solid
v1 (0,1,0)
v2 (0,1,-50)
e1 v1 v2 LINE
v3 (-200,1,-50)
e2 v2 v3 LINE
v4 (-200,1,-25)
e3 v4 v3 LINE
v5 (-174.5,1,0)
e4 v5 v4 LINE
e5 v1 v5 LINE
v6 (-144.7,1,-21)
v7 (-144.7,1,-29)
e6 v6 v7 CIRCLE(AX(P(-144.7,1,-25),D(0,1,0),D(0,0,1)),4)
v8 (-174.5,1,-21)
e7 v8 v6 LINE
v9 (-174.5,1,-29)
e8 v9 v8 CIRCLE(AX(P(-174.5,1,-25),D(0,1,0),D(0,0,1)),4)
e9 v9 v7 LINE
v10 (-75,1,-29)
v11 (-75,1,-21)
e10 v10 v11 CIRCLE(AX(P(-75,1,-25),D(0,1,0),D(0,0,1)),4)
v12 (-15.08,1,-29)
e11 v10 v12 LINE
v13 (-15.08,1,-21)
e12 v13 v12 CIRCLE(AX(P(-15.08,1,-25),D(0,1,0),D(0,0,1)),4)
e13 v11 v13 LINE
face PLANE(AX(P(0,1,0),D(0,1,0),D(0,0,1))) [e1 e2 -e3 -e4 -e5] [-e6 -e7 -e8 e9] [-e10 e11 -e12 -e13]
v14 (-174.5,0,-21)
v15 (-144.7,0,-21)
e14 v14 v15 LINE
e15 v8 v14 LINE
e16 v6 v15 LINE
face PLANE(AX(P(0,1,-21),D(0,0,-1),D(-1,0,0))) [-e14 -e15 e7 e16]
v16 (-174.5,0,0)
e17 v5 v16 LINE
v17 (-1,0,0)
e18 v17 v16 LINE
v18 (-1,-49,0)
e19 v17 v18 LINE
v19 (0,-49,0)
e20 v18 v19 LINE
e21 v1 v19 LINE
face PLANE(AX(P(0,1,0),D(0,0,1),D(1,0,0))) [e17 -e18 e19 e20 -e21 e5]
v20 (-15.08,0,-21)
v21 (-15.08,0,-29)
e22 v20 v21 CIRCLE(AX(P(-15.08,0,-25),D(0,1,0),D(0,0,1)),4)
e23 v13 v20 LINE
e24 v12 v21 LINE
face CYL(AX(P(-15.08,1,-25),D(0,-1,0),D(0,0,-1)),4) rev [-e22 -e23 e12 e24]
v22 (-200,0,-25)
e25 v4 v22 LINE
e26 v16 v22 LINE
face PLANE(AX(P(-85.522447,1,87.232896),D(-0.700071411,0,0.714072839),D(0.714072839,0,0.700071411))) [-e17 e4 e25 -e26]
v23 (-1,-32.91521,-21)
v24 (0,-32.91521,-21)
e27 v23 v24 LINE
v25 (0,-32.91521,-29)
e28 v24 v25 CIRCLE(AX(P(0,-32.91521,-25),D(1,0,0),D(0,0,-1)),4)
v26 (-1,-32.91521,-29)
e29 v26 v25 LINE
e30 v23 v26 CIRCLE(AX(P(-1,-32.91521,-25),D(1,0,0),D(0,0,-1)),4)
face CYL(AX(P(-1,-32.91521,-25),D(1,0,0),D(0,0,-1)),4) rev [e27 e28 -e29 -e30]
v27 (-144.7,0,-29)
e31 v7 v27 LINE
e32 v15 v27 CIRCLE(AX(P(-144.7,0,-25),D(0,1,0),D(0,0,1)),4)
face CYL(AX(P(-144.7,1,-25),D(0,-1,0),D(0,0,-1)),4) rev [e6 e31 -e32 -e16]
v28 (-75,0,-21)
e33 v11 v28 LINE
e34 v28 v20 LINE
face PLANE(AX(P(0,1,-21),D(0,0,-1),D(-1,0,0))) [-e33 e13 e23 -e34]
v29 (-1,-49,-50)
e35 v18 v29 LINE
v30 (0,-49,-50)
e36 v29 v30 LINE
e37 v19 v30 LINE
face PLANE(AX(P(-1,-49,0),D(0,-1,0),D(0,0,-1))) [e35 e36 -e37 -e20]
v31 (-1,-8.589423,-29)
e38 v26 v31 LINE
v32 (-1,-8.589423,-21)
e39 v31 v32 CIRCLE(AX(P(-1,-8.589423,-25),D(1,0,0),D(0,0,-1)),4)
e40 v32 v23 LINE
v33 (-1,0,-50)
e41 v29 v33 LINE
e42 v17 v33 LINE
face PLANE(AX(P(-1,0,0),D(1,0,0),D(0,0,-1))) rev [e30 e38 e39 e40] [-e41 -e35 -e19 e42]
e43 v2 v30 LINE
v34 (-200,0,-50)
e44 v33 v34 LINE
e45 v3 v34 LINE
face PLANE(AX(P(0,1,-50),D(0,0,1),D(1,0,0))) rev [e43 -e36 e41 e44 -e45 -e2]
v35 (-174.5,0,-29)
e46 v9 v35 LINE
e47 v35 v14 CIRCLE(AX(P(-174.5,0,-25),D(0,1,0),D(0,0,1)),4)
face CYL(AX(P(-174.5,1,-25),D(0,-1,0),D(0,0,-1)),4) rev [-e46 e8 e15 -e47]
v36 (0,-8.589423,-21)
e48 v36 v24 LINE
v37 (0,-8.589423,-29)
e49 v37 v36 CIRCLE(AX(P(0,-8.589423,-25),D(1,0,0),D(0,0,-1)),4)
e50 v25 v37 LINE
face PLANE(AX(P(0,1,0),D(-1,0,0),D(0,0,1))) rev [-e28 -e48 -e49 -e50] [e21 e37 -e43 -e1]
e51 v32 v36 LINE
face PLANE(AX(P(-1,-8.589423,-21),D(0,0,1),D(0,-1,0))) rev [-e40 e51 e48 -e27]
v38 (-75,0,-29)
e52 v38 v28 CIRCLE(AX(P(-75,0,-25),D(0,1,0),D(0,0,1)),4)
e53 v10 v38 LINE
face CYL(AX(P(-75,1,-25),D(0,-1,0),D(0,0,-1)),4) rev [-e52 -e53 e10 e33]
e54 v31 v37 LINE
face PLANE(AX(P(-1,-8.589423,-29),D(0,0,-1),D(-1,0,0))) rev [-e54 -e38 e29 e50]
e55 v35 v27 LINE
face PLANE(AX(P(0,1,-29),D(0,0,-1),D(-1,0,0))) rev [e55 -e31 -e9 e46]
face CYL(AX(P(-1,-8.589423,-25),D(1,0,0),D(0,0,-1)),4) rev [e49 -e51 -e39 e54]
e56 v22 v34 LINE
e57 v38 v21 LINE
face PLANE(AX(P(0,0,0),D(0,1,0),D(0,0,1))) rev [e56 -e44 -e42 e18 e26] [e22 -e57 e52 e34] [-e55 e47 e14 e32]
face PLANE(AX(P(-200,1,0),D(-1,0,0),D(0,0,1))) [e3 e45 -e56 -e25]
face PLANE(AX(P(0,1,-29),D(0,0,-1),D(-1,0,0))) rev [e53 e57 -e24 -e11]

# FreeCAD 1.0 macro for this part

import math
import FreeCAD as App
import Part
import Sketcher

doc = App.newDocument("Part")
body = doc.addObject("PartDesign::Body", "Body")

# Sketch on XZ plane
sketch1 = body.newObject("Sketcher::SketchObject", "Sketch")
sketch1.AttachmentSupport = (doc.getObject("XZ_Plane"), [""])
sketch1.MapMode = "FlatFace"
sketch1.addGeometry(Part.LineSegment(App.Vector(-200, -25, 0), App.Vector(-174.5, 0, 0)), False)
sketch1.addGeometry(Part.LineSegment(App.Vector(-174.5, 0, 0), App.Vector(0, 0, 0)), False)
sketch1.addGeometry(Part.LineSegment(App.Vector(0, 0, 0), App.Vector(0, -50, 0)), False)
sketch1.addGeometry(Part.LineSegment(App.Vector(0, -50, 0), App.Vector(-200, -50, 0)), False)
sketch1.addGeometry(Part.LineSegment(App.Vector(-200, -50, 0), App.Vector(-200, -25, 0)), False)
sketch1.addGeometry(Part.LineSegment(App.Vector(-144.7, -21, 0), App.Vector(-174.5, -21, 0)), False)
sketch1.addGeometry(Part.ArcOfCircle(Part.Circle(App.Vector(-174.5, -25, 0), App.Vector(0, 0, 1), 4), math.radians(90), math.radians(270)), False)
sketch1.addGeometry(Part.LineSegment(App.Vector(-174.5, -29, 0), App.Vector(-144.7, -29, 0)), False)
sketch1.addGeometry(Part.ArcOfCircle(Part.Circle(App.Vector(-144.7, -25, 0), App.Vector(0, 0, 1), 4), math.radians(-90), math.radians(90)), False)
sketch1.addGeometry(Part.LineSegment(App.Vector(-15.1, -21, 0), App.Vector(-75, -21, 0)), False)
sketch1.addGeometry(Part.ArcOfCircle(Part.Circle(App.Vector(-75, -25, 0), App.Vector(0, 0, 1), 4), math.radians(90), math.radians(270)), False)
sketch1.addGeometry(Part.LineSegment(App.Vector(-75, -29, 0), App.Vector(-15.1, -29, 0)), False)
sketch1.addGeometry(Part.ArcOfCircle(Part.Circle(App.Vector(-15.1, -25, 0), App.Vector(0, 0, 1), 4), math.radians(-90), math.radians(90)), False)
sketch1.addConstraint(Sketcher.Constraint("Coincident", 0, 2, 1, 1))
sketch1.addConstraint(Sketcher.Constraint("Coincident", 1, 2, 2, 1))
sketch1.addConstraint(Sketcher.Constraint("Coincident", 2, 2, 3, 1))
sketch1.addConstraint(Sketcher.Constraint("Coincident", 3, 2, 4, 1))
sketch1.addConstraint(Sketcher.Constraint("Coincident", 4, 2, 0, 1))
sketch1.addConstraint(Sketcher.Constraint("Tangent", 5, 2, 6, 1))
sketch1.addConstraint(Sketcher.Constraint("Tangent", 6, 2, 7, 1))
sketch1.addConstraint(Sketcher.Constraint("Tangent", 7, 2, 8, 1))
sketch1.addConstraint(Sketcher.Constraint("Tangent", 8, 2, 5, 1))
sketch1.addConstraint(Sketcher.Constraint("Tangent", 9, 2, 10, 1))
sketch1.addConstraint(Sketcher.Constraint("Tangent", 10, 2, 11, 1))
sketch1.addConstraint(Sketcher.Constraint("Tangent", 11, 2, 12, 1))
sketch1.addConstraint(Sketcher.Constraint("Tangent", 12, 2, 9, 1))
sketch1.addConstraint(Sketcher.Constraint("Horizontal", 1))
sketch1.addConstraint(Sketcher.Constraint("Vertical", 2))
sketch1.addConstraint(Sketcher.Constraint("Horizontal", 3))
sketch1.addConstraint(Sketcher.Constraint("Vertical", 4))
sketch1.addConstraint(Sketcher.Constraint("Horizontal", 5))
sketch1.addConstraint(Sketcher.Constraint("Horizontal", 7))
sketch1.addConstraint(Sketcher.Constraint("Horizontal", 9))
sketch1.addConstraint(Sketcher.Constraint("Horizontal", 11))
sketch1.addConstraint(Sketcher.Constraint("Coincident", 1, 2, -1, 1))
sketch1.addConstraint(Sketcher.Constraint("Equal", 8, 10))
sketch1.addConstraint(Sketcher.Constraint("Horizontal", 8, 3, 10, 3))
sketch1.addConstraint(Sketcher.Constraint("Horizontal", 12, 3, 4, 2))
sketch1.addConstraint(Sketcher.Constraint("Vertical", 6, 3, 0, 2))
sketch1.addConstraint(Sketcher.Constraint("Radius", 6, 4.0))
sketch1.addConstraint(Sketcher.Constraint("DistanceX", 3, 2, 3, 1, 200.0))
sketch1.addConstraint(Sketcher.Constraint("DistanceY", 2, 2, 2, 1, 50.0))
sketch1.addConstraint(Sketcher.Constraint("DistanceY", 4, 1, 4, 2, 25.0))
sketch1.addConstraint(Sketcher.Constraint("DistanceX", 1, 1, 1, 2, 174.5))
sketch1.addConstraint(Sketcher.Constraint("DistanceX", 5, 2, 5, 1, 29.8))
sketch1.addConstraint(Sketcher.Constraint("DistanceX", 10, 3, -1, 1, 75.0))
sketch1.addConstraint(Sketcher.Constraint("DistanceX", 9, 2, 9, 1, 59.92))
pad1 = body.newObject("PartDesign::Pad", "Pad")
pad1.Profile = sketch1
pad1.Length = 1
pad1.Reversed = True

# Sketch on YZ plane
sketch2 = body.newObject("Sketcher::SketchObject", "Sketch001")
sketch2.AttachmentSupport = (doc.getObject("YZ_Plane"), [""])
sketch2.MapMode = "FlatFace"
sketch2.addGeometry(Part.LineSegment(App.Vector(1, 0, 0), App.Vector(-49, 0, 0)), False)
sketch2.addGeometry(Part.LineSegment(App.Vector(-49, 0, 0), App.Vector(-49, -50, 0)), False)
sketch2.addGeometry(Part.LineSegment(App.Vector(-49, -50, 0), App.Vector(1, -50, 0)), False)
sketch2.addGeometry(Part.LineSegment(App.Vector(1, -50, 0), App.Vector(1, 0, 0)), False)
sketch2.addConstraint(Sketcher.Constraint("Coincident", 0, 2, 1, 1))
sketch2.addConstraint(Sketcher.Constraint("Coincident", 1, 2, 2, 1))
sketch2.addConstraint(Sketcher.Constraint("Coincident", 2, 2, 3, 1))
sketch2.addConstraint(Sketcher.Constraint("Coincident", 3, 2, 0, 1))
sketch2.addConstraint(Sketcher.Constraint("Horizontal", 0))
sketch2.addConstraint(Sketcher.Constraint("Vertical", 1))
sketch2.addConstraint(Sketcher.Constraint("Horizontal", 2))
sketch2.addConstraint(Sketcher.Constraint("Vertical", 3))
sketch2.addConstraint(Sketcher.Constraint("PointOnObject", 0, 2, -1))
sketch2.addConstraint(Sketcher.Constraint("Equal", 2, 1))
sketch2.addConstraint(Sketcher.Constraint("DistanceX", 0, 2, 0, 1, 50.0))
sketch2.addConstraint(Sketcher.Constraint("DistanceX", 0, 2, -1, 1, 49.0))
pad2 = body.newObject("PartDesign::Pad", "Pad001")
pad2.Profile = sketch2
pad2.Length = 1
pad2.Reversed = True

# Sketch on YZ plane
sketch3 = body.newObject("Sketcher::SketchObject", "Sketch002")
sketch3.AttachmentSupport = (doc.getObject("YZ_Plane"), [""])
sketch3.MapMode = "FlatFace"
sketch3.addGeometry(Part.LineSegment(App.Vector(-32.9, -29, 0), App.Vector(-8.6, -29, 0)), False)
sketch3.addGeometry(Part.ArcOfCircle(Part.Circle(App.Vector(-8.6, -25, 0), App.Vector(0, 0, 1), 4), math.radians(-90), math.radians(90)), False)
sketch3.addGeometry(Part.LineSegment(App.Vector(-8.6, -21, 0), App.Vector(-32.9, -21, 0)), False)
sketch3.addGeometry(Part.ArcOfCircle(Part.Circle(App.Vector(-32.9, -25, 0), App.Vector(0, 0, 1), 4), math.radians(90), math.radians(270)), False)
sketch3.addConstraint(Sketcher.Constraint("Tangent", 0, 2, 1, 1))
sketch3.addConstraint(Sketcher.Constraint("Tangent", 1, 2, 2, 1))
sketch3.addConstraint(Sketcher.Constraint("Tangent", 2, 2, 3, 1))
sketch3.addConstraint(Sketcher.Constraint("Tangent", 3, 2, 0, 1))
sketch3.addConstraint(Sketcher.Constraint("Horizontal", 0))
sketch3.addConstraint(Sketcher.Constraint("Horizontal", 2))
sketch3.addConstraint(Sketcher.Constraint("Radius", 1, 4.0))
sketch3.addConstraint(Sketcher.Constraint("DistanceY", 1, 3, -1, 1, 25.0))
sketch3.addConstraint(Sketcher.Constraint("DistanceX", 0, 1, 0, 2, 24.325787))
sketch3.addConstraint(Sketcher.Constraint("DistanceX", 3, 3, -1, 1, 32.91521))
pocket1 = body.newObject("PartDesign::Pocket", "Pocket")
pocket1.Profile = sketch3
pocket1.Length = 1

doc.recompute()
